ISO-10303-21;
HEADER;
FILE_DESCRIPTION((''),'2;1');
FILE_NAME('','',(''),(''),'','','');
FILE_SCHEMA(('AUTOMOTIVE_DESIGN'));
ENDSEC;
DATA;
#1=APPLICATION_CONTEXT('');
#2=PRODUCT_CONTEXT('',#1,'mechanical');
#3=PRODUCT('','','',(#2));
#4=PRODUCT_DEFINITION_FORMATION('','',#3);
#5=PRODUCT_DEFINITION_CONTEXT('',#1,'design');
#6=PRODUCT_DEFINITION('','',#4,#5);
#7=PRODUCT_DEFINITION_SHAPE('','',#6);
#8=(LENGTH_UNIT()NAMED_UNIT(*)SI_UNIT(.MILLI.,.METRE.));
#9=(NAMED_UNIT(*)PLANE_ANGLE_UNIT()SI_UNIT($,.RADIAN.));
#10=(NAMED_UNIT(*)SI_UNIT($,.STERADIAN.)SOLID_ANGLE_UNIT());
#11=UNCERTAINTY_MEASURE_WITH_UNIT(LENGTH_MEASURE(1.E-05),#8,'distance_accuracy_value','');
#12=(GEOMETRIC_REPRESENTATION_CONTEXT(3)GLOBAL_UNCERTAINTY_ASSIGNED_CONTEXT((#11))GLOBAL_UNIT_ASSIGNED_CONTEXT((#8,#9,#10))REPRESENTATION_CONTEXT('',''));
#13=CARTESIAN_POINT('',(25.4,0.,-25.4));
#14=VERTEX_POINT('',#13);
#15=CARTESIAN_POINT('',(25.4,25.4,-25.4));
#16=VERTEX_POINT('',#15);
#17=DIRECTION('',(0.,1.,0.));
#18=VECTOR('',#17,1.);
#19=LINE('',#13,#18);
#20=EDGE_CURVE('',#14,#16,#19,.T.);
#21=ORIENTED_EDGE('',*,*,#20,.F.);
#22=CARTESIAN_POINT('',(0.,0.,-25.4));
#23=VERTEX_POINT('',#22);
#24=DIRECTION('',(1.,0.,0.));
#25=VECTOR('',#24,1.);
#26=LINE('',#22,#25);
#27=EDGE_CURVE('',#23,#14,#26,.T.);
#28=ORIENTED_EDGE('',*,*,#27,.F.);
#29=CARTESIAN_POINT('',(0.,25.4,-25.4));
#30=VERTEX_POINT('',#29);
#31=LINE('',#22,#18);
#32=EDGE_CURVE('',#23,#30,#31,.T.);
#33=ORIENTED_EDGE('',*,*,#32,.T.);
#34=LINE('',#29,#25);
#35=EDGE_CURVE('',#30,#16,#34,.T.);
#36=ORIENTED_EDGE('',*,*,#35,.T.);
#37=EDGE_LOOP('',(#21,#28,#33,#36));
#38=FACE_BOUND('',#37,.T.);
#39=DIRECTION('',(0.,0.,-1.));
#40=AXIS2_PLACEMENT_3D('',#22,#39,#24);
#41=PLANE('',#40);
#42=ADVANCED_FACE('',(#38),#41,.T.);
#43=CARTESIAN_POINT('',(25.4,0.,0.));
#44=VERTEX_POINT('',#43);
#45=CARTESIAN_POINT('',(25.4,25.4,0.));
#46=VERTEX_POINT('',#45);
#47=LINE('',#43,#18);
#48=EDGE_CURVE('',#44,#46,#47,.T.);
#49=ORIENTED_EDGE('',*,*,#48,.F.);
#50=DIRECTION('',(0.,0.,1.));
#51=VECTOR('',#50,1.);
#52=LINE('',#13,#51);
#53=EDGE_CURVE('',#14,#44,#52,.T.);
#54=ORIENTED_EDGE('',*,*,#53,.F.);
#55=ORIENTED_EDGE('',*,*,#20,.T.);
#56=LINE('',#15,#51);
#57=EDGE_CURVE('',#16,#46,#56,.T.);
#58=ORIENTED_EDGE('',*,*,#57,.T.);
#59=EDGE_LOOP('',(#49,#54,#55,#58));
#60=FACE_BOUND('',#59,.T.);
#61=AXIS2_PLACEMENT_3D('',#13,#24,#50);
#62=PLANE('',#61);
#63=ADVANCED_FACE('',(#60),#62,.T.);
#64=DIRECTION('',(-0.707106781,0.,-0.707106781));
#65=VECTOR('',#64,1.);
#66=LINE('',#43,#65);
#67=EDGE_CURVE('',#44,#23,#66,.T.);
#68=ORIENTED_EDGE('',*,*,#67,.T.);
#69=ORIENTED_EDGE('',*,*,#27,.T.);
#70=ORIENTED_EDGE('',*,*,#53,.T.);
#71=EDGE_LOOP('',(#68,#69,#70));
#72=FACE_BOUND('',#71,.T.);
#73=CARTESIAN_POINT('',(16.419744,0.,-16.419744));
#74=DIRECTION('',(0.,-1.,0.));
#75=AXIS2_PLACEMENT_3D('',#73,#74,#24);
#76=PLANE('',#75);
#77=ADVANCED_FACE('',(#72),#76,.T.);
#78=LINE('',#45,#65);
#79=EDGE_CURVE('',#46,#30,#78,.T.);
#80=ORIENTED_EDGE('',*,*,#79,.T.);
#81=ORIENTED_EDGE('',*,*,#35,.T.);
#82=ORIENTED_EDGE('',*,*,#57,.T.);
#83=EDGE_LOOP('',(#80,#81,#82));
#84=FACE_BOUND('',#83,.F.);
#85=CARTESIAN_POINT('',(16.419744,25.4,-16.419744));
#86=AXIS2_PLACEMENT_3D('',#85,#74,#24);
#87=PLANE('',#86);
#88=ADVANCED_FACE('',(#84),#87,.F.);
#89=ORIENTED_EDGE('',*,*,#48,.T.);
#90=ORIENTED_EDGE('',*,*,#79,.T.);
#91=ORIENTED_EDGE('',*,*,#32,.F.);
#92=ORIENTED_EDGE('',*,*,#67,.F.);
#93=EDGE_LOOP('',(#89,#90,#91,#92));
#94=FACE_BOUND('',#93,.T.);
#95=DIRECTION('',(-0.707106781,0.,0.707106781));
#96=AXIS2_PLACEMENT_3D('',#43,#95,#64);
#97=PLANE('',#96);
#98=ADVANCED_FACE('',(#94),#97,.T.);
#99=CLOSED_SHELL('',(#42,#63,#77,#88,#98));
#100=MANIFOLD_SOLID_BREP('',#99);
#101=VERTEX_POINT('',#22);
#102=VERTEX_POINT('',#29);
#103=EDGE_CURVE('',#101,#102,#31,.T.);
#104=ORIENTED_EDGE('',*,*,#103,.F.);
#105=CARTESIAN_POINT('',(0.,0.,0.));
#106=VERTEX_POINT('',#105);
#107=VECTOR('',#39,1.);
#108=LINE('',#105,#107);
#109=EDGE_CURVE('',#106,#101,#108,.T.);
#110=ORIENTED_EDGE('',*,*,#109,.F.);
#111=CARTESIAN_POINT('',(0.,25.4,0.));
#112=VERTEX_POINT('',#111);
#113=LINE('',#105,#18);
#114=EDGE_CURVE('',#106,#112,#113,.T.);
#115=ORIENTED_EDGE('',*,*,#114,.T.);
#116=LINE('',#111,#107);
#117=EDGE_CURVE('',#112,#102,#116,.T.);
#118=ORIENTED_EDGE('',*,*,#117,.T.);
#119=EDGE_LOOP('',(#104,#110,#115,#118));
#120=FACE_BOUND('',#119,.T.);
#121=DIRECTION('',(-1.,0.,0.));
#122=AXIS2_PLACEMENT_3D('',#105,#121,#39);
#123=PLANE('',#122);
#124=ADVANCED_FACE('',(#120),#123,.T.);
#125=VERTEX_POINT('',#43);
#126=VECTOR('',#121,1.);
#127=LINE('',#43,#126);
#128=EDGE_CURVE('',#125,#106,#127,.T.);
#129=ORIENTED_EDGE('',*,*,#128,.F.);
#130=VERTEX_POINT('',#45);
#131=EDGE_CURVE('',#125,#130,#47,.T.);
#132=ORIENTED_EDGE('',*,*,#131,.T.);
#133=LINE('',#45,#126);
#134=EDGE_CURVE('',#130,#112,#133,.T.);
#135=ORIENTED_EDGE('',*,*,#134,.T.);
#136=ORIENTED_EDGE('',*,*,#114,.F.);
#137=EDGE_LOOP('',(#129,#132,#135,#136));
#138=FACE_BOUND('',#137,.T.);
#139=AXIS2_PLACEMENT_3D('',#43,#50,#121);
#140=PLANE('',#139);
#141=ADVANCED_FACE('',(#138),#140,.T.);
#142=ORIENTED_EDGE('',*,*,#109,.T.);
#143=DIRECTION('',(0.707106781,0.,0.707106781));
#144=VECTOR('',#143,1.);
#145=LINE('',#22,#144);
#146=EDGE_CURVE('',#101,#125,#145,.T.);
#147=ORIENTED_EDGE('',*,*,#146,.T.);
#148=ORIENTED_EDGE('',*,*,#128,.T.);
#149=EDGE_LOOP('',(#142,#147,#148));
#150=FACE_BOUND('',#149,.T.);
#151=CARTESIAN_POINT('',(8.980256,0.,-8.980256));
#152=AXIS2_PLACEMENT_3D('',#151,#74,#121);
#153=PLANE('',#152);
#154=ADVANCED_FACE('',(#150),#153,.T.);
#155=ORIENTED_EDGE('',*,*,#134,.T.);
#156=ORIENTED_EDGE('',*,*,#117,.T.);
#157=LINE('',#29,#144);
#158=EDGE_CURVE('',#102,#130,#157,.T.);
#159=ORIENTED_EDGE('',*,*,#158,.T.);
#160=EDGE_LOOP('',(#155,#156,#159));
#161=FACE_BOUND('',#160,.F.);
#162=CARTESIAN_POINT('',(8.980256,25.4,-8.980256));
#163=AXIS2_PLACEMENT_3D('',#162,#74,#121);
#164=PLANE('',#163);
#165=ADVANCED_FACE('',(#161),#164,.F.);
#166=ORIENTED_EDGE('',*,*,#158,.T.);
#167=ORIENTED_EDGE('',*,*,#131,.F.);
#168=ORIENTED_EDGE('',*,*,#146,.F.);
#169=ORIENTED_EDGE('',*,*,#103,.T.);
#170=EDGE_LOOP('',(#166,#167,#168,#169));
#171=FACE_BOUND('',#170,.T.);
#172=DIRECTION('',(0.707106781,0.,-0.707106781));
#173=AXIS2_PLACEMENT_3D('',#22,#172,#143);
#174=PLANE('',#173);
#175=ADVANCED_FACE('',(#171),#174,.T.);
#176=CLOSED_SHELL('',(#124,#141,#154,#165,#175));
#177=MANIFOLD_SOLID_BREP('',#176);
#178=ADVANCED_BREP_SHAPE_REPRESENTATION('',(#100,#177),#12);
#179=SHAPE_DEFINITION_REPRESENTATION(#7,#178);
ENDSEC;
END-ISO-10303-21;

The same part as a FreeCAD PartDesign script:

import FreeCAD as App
import Part
import Sketcher
from FreeCAD import Vector
Q = App.Units.Quantity


def add_polygon(sketch, points):
    """Adds a closed chain of lines whose ends are joined by coincident constraints."""
    first, n = sketch.GeometryCount, len(points)
    for a, b in zip(points, points[1:] + points[:1]):
        sketch.addGeometry(Part.LineSegment(App.Vector(*a, 0), App.Vector(*b, 0)), False)
    for i in range(n):
        sketch.addConstraint(Sketcher.Constraint("Coincident", first + i, 2, first + (i + 1) % n, 1))

doc = App.newDocument("Part")
body = doc.addObject("PartDesign::Body", "Body")

# Sketch on XZ plane
sketch1 = body.newObject("Sketcher::SketchObject", "Sketch")
sketch1.AttachmentSupport = (doc.getObject("XZ_Plane"), [""])
sketch1.MapMode = "FlatFace"
add_polygon(sketch1, [(0, -25), (0, 0), (25, 0)])  # lines 0-2
sketch1.addConstraint(Sketcher.Constraint("Vertical", 0))
sketch1.addConstraint(Sketcher.Constraint("Horizontal", 1))
sketch1.addConstraint(Sketcher.Constraint("Coincident", 0, 2, -1, 1))
sketch1.addConstraint(Sketcher.Constraint("Equal", 1, 0))
sketch1.addConstraint(Sketcher.Constraint("DistanceX", 1, 1, 1, 2, Q("1 in")))
pad1 = body.newObject("PartDesign::Pad", "Pad")
pad1.Profile = sketch1
pad1.Length = Q("1 in")
pad1.Reversed = True
body2 = doc.addObject("PartDesign::Body", "Body001")

# Sketch on XZ plane
sketch2 = body2.newObject("Sketcher::SketchObject", "Sketch001")
sketch2.AttachmentSupport = (doc.getObject("XZ_Plane001"), [""])
sketch2.MapMode = "FlatFace"
add_polygon(sketch2, [(0, -25), (25, -25), (25, 0)])  # lines 0-2
sketch2.addConstraint(Sketcher.Constraint("Horizontal", 0))
sketch2.addConstraint(Sketcher.Constraint("Vertical", 1))
sketch2.addConstraint(Sketcher.Constraint("PointOnObject", 1, 2, -1))
sketch2.addConstraint(Sketcher.Constraint("PointOnObject", 2, 2, -2))
sketch2.addConstraint(Sketcher.Constraint("Equal", 0, 1))
sketch2.addConstraint(Sketcher.Constraint("DistanceX", 0, 1, 0, 2, Q("1 in")))
pad2 = body2.newObject("PartDesign::Pad", "Pad001")
pad2.Profile = sketch2
pad2.Length = Q("1 in")
pad2.Reversed = True

doc.recompute()
